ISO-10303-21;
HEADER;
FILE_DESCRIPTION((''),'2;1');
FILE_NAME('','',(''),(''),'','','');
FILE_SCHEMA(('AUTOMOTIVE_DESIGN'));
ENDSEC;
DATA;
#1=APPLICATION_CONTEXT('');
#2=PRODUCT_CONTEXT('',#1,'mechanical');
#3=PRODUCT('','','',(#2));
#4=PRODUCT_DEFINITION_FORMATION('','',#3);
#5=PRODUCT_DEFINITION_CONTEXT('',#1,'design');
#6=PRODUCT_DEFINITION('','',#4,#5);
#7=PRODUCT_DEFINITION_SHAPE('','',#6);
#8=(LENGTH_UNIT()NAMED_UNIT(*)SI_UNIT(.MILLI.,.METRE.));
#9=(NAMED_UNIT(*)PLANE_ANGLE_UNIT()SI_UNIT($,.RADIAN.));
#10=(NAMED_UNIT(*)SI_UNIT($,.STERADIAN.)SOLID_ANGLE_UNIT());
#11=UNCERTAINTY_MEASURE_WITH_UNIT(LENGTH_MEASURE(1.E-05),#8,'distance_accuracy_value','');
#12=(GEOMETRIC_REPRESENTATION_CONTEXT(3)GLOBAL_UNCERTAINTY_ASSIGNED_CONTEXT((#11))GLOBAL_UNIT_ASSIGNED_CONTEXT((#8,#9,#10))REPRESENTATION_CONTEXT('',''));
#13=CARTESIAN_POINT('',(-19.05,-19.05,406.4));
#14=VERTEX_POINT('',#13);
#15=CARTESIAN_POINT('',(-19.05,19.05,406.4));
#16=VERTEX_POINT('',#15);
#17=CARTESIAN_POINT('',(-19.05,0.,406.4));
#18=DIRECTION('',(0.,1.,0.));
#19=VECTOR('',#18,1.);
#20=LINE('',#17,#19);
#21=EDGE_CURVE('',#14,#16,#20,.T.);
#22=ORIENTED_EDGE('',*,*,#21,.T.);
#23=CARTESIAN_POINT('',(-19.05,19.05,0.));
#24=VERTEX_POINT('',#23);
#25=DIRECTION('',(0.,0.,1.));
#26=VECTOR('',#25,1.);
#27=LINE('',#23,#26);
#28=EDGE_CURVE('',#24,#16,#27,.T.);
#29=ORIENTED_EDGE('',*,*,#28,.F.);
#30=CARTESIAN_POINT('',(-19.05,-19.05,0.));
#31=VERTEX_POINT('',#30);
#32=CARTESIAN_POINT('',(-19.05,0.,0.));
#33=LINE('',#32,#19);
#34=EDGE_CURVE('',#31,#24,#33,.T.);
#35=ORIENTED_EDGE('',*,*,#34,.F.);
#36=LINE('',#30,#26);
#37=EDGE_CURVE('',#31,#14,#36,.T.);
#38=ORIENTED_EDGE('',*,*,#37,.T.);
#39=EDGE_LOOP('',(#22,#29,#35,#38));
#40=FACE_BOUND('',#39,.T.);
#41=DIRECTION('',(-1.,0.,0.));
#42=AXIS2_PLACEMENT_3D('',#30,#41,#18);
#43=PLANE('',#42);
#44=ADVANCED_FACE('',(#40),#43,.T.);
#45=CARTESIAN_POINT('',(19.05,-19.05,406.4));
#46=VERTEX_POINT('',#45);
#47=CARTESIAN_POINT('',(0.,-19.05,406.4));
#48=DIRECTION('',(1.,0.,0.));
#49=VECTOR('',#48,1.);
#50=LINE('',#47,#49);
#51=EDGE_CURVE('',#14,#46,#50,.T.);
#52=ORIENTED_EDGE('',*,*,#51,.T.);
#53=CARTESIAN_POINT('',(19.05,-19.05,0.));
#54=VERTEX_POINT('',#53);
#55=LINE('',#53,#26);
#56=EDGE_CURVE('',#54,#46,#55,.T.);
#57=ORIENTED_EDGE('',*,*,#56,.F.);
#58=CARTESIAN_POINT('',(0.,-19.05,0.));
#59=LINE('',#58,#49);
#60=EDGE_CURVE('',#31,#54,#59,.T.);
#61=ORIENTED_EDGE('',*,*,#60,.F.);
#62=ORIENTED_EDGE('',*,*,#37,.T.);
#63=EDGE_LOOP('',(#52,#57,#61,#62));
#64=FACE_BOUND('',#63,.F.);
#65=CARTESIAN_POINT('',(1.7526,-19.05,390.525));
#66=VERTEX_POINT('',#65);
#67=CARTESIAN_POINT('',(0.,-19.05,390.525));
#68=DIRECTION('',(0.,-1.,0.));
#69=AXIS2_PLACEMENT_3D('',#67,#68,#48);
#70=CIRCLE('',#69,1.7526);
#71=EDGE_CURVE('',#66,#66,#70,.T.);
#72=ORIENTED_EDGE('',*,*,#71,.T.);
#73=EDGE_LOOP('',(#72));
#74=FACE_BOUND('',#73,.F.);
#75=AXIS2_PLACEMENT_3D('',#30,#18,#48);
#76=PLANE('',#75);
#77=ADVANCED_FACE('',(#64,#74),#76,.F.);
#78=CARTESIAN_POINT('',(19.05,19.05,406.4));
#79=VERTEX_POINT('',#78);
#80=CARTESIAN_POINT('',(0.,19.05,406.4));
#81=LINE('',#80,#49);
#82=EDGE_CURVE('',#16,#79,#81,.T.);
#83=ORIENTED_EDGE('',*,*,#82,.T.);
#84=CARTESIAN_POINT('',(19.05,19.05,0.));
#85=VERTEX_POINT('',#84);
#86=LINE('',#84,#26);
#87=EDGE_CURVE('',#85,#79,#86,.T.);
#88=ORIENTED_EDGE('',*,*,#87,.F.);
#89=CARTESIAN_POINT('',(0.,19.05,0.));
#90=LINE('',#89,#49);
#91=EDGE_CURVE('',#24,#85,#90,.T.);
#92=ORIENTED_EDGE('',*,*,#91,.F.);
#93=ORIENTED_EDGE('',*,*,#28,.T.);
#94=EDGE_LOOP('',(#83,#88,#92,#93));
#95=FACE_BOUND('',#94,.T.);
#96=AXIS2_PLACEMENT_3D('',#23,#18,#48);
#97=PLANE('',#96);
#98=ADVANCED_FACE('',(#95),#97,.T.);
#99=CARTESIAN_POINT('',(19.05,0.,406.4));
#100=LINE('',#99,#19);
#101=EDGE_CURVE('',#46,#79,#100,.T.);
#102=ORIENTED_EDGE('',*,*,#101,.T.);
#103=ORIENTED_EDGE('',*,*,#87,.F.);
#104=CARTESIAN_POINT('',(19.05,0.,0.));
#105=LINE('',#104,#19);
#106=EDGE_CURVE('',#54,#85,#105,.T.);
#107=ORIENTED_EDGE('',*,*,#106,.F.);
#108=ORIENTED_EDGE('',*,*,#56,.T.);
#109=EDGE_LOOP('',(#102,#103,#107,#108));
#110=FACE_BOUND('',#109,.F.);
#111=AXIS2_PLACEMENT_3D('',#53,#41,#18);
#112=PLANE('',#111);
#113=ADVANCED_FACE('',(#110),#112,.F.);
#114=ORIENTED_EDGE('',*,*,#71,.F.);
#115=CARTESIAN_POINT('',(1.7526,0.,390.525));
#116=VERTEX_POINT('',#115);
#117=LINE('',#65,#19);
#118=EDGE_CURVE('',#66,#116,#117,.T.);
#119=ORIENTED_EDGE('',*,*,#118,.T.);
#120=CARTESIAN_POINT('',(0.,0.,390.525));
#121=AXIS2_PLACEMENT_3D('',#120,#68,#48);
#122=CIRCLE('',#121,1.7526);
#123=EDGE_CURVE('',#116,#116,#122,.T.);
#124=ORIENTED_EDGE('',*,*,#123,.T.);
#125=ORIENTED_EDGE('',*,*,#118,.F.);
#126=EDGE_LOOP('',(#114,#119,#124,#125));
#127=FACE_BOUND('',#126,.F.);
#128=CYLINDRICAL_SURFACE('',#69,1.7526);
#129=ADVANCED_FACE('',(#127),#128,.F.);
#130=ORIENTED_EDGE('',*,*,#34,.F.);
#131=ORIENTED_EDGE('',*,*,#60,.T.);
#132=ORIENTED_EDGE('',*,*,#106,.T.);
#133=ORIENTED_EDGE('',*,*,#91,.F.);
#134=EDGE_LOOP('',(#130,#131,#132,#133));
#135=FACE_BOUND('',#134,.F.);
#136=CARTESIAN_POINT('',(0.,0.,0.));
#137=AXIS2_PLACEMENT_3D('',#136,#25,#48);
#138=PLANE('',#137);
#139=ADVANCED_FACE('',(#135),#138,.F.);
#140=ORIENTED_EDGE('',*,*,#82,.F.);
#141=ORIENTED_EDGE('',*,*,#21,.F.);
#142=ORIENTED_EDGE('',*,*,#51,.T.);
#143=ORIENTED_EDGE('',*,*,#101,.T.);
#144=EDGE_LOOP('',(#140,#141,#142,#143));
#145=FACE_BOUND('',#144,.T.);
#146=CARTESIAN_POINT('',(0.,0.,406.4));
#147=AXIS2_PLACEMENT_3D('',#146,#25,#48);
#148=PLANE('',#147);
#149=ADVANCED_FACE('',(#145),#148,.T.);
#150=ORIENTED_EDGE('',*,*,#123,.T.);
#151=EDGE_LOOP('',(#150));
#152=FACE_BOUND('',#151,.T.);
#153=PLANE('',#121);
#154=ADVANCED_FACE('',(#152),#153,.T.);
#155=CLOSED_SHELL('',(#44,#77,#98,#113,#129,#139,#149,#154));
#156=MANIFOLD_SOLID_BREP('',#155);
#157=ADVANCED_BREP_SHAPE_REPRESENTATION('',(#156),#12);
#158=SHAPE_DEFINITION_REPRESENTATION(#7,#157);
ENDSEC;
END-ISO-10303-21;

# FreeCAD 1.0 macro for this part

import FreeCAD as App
import Part
import Sketcher
from FreeCAD import Vector
Q = App.Units.Quantity

doc = App.newDocument("Part")
body = doc.addObject("PartDesign::Body", "Body")

# Sketch on XY plane
sketch1 = body.newObject("Sketcher::SketchObject", "Sketch")
sketch1.AttachmentSupport = (doc.getObject("XY_Plane"), [""])
sketch1.MapMode = "FlatFace"
sketch1.addGeometry(Part.LineSegment(Vector(-19, 19, 0), Vector(-19, -19, 0)), False)
sketch1.addGeometry(Part.LineSegment(Vector(-19, -19, 0), Vector(19, -19, 0)), False)
sketch1.addGeometry(Part.LineSegment(Vector(19, -19, 0), Vector(19, 19, 0)), False)
sketch1.addGeometry(Part.LineSegment(Vector(19, 19, 0), Vector(-19, 19, 0)), False)
sketch1.addConstraint(Sketcher.Constraint("Coincident", 0, 2, 1, 1))
sketch1.addConstraint(Sketcher.Constraint("Coincident", 1, 2, 2, 1))
sketch1.addConstraint(Sketcher.Constraint("Coincident", 2, 2, 3, 1))
sketch1.addConstraint(Sketcher.Constraint("Coincident", 3, 2, 0, 1))
sketch1.addConstraint(Sketcher.Constraint("Vertical", 0))
sketch1.addConstraint(Sketcher.Constraint("Horizontal", 1))
sketch1.addConstraint(Sketcher.Constraint("Vertical", 2))
sketch1.addConstraint(Sketcher.Constraint("Horizontal", 3))
sketch1.addConstraint(Sketcher.Constraint("Symmetric", 0, 2, 2, 2, -1, 1))
sketch1.addConstraint(Sketcher.Constraint("Equal", 3, 0))
sketch1.addConstraint(Sketcher.Constraint("DistanceX", 1, 1, 1, 2, Q("1.5 in")))
pad1 = body.newObject("PartDesign::Pad", "Pad")
pad1.Profile = sketch1
pad1.Length = Q("16 in")

# Sketch on XZ plane
sketch2 = body.newObject("Sketcher::SketchObject", "Sketch001")
sketch2.AttachmentSupport = (doc.getObject("XZ_Plane"), [""])
sketch2.MapMode = "FlatFace"
sketch2.AttachmentOffset = App.Placement(Vector(0, 0, 0.75 * 25.4), App.Rotation())
sketch2.addGeometry(Part.Circle(Vector(0, 390.5, 0), Vector(0, 0, 1), 1.8), False)
sketch2.addConstraint(Sketcher.Constraint("PointOnObject", 0, 3, -2))
sketch2.addConstraint(Sketcher.Constraint("Diameter", 0, Q("0.138 in")))
sketch2.addConstraint(Sketcher.Constraint("DistanceY", -1, 1, 0, 3, Q("15.375 in")))
pocket1 = body.newObject("PartDesign::Pocket", "Pocket")
pocket1.Profile = sketch2
pocket1.Length = Q("0.75 in")

doc.recompute()
